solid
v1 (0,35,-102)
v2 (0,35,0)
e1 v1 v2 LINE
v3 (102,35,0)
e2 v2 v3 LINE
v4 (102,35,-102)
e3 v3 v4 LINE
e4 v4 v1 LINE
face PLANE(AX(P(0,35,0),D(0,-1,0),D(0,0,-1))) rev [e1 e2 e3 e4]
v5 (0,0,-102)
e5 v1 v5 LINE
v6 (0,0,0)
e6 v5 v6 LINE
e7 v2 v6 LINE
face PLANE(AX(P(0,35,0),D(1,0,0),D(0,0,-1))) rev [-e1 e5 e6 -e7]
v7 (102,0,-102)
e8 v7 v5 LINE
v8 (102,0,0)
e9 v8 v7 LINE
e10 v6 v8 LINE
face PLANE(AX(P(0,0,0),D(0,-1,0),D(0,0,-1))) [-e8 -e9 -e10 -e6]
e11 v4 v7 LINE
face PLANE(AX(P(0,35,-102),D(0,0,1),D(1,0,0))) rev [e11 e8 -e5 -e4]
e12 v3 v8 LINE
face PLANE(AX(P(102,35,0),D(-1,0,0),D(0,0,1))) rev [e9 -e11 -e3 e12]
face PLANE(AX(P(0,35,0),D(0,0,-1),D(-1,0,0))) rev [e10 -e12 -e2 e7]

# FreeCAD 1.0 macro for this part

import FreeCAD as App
import Part
import Sketcher
from FreeCAD import Vector
Q = App.Units.Quantity


def add_polygon(sketch, points):
    """Adds a closed chain of lines whose ends are joined by coincident constraints."""
    first, n = sketch.GeometryCount, len(points)
    for a, b in zip(points, points[1:] + points[:1]):
        sketch.addGeometry(Part.LineSegment(App.Vector(*a, 0), App.Vector(*b, 0)), False)
    for i in range(n):
        sketch.addConstraint(Sketcher.Constraint("Coincident", first + i, 2, first + (i + 1) % n, 1))

doc = App.newDocument("Part")
body = doc.addObject("PartDesign::Body", "Body")

sketch1 = body.newObject("Sketcher::SketchObject", "Sketch")
sketch1.AttachmentSupport = (doc.getObject("XZ_Plane"), [""])
sketch1.MapMode = "FlatFace"
add_polygon(sketch1, [(0, -102), (0, 0), (102, 0), (102, -102)])
sketch1.addConstraint([
    Sketcher.Constraint("Vertical", 0),
    Sketcher.Constraint("Horizontal", 1),
    Sketcher.Constraint("Vertical", 2),
    Sketcher.Constraint("Horizontal", 3),
    Sketcher.Constraint("Coincident", 0, 2, -1, 1),
    Sketcher.Constraint("Equal", 3, 0),
    Sketcher.Constraint("DistanceX", 1, 1, 1, 2, Q("102 mm")),
])
pad1 = body.newObject("PartDesign::Pad", "Pad")
pad1.Profile = sketch1
pad1.Length = 35
pad1.Reversed = True

doc.recompute()
